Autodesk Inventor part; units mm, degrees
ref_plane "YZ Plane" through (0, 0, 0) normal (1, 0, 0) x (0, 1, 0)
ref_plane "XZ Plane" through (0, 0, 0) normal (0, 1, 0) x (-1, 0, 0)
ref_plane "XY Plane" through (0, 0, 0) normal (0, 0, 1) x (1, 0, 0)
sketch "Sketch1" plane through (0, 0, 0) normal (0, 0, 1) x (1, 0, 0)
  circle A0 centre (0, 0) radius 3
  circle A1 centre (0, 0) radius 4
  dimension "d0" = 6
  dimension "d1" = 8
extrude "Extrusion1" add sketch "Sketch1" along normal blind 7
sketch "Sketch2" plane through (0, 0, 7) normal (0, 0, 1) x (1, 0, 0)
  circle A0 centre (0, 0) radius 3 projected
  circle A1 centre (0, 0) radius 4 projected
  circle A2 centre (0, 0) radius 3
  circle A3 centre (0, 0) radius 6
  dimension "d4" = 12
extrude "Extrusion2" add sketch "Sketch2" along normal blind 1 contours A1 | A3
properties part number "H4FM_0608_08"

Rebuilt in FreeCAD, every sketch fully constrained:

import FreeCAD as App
import Part
import Sketcher

V = App.Vector

doc = App.newDocument("Part")
body = doc.addObject("PartDesign::Body", "Body")

sketch1 = body.newObject("Sketcher::SketchObject", "Sketch")
sketch1.AttachmentSupport = (doc.getObject("XY_Plane"), [""])
sketch1.MapMode = "FlatFace"
sketch1.addGeometry(Part.Circle(V(0, 0, 0), V(0, 0, 1), 4), False)
sketch1.addGeometry(Part.Circle(V(0, 0, 0), V(0, 0, 1), 3), False)
sketch1.addConstraint(Sketcher.Constraint("Coincident", 0, 3, -1, 1))
sketch1.addConstraint(Sketcher.Constraint("Coincident", 1, 3, -1, 1))
sketch1.addConstraint(Sketcher.Constraint("Diameter", 0, 8.0))
sketch1.addConstraint(Sketcher.Constraint("Diameter", 1, 6.0))
pad1 = body.newObject("PartDesign::Pad", "Pad")
pad1.Profile = sketch1
pad1.Length = 7

sketch2 = body.newObject("Sketcher::SketchObject", "Sketch001")
sketch2.AttachmentSupport = (doc.getObject("XY_Plane"), [""])
sketch2.MapMode = "FlatFace"
sketch2.AttachmentOffset = App.Placement(V(0, 0, 7), App.Rotation())
sketch2.addGeometry(Part.Circle(V(0, 0, 0), V(0, 0, 1), 6), False)
sketch2.addGeometry(Part.Circle(V(0, 0, 0), V(0, 0, 1), 3), False)
sketch2.addConstraint(Sketcher.Constraint("Coincident", 0, 3, -1, 1))
sketch2.addConstraint(Sketcher.Constraint("Coincident", 1, 3, -1, 1))
sketch2.addConstraint(Sketcher.Constraint("Diameter", 0, 12.0))
sketch2.addConstraint(Sketcher.Constraint("Diameter", 1, 6.0))
pad2 = body.newObject("PartDesign::Pad", "Pad001")
pad2.Profile = sketch2
pad2.Length = 1

doc.recompute()
